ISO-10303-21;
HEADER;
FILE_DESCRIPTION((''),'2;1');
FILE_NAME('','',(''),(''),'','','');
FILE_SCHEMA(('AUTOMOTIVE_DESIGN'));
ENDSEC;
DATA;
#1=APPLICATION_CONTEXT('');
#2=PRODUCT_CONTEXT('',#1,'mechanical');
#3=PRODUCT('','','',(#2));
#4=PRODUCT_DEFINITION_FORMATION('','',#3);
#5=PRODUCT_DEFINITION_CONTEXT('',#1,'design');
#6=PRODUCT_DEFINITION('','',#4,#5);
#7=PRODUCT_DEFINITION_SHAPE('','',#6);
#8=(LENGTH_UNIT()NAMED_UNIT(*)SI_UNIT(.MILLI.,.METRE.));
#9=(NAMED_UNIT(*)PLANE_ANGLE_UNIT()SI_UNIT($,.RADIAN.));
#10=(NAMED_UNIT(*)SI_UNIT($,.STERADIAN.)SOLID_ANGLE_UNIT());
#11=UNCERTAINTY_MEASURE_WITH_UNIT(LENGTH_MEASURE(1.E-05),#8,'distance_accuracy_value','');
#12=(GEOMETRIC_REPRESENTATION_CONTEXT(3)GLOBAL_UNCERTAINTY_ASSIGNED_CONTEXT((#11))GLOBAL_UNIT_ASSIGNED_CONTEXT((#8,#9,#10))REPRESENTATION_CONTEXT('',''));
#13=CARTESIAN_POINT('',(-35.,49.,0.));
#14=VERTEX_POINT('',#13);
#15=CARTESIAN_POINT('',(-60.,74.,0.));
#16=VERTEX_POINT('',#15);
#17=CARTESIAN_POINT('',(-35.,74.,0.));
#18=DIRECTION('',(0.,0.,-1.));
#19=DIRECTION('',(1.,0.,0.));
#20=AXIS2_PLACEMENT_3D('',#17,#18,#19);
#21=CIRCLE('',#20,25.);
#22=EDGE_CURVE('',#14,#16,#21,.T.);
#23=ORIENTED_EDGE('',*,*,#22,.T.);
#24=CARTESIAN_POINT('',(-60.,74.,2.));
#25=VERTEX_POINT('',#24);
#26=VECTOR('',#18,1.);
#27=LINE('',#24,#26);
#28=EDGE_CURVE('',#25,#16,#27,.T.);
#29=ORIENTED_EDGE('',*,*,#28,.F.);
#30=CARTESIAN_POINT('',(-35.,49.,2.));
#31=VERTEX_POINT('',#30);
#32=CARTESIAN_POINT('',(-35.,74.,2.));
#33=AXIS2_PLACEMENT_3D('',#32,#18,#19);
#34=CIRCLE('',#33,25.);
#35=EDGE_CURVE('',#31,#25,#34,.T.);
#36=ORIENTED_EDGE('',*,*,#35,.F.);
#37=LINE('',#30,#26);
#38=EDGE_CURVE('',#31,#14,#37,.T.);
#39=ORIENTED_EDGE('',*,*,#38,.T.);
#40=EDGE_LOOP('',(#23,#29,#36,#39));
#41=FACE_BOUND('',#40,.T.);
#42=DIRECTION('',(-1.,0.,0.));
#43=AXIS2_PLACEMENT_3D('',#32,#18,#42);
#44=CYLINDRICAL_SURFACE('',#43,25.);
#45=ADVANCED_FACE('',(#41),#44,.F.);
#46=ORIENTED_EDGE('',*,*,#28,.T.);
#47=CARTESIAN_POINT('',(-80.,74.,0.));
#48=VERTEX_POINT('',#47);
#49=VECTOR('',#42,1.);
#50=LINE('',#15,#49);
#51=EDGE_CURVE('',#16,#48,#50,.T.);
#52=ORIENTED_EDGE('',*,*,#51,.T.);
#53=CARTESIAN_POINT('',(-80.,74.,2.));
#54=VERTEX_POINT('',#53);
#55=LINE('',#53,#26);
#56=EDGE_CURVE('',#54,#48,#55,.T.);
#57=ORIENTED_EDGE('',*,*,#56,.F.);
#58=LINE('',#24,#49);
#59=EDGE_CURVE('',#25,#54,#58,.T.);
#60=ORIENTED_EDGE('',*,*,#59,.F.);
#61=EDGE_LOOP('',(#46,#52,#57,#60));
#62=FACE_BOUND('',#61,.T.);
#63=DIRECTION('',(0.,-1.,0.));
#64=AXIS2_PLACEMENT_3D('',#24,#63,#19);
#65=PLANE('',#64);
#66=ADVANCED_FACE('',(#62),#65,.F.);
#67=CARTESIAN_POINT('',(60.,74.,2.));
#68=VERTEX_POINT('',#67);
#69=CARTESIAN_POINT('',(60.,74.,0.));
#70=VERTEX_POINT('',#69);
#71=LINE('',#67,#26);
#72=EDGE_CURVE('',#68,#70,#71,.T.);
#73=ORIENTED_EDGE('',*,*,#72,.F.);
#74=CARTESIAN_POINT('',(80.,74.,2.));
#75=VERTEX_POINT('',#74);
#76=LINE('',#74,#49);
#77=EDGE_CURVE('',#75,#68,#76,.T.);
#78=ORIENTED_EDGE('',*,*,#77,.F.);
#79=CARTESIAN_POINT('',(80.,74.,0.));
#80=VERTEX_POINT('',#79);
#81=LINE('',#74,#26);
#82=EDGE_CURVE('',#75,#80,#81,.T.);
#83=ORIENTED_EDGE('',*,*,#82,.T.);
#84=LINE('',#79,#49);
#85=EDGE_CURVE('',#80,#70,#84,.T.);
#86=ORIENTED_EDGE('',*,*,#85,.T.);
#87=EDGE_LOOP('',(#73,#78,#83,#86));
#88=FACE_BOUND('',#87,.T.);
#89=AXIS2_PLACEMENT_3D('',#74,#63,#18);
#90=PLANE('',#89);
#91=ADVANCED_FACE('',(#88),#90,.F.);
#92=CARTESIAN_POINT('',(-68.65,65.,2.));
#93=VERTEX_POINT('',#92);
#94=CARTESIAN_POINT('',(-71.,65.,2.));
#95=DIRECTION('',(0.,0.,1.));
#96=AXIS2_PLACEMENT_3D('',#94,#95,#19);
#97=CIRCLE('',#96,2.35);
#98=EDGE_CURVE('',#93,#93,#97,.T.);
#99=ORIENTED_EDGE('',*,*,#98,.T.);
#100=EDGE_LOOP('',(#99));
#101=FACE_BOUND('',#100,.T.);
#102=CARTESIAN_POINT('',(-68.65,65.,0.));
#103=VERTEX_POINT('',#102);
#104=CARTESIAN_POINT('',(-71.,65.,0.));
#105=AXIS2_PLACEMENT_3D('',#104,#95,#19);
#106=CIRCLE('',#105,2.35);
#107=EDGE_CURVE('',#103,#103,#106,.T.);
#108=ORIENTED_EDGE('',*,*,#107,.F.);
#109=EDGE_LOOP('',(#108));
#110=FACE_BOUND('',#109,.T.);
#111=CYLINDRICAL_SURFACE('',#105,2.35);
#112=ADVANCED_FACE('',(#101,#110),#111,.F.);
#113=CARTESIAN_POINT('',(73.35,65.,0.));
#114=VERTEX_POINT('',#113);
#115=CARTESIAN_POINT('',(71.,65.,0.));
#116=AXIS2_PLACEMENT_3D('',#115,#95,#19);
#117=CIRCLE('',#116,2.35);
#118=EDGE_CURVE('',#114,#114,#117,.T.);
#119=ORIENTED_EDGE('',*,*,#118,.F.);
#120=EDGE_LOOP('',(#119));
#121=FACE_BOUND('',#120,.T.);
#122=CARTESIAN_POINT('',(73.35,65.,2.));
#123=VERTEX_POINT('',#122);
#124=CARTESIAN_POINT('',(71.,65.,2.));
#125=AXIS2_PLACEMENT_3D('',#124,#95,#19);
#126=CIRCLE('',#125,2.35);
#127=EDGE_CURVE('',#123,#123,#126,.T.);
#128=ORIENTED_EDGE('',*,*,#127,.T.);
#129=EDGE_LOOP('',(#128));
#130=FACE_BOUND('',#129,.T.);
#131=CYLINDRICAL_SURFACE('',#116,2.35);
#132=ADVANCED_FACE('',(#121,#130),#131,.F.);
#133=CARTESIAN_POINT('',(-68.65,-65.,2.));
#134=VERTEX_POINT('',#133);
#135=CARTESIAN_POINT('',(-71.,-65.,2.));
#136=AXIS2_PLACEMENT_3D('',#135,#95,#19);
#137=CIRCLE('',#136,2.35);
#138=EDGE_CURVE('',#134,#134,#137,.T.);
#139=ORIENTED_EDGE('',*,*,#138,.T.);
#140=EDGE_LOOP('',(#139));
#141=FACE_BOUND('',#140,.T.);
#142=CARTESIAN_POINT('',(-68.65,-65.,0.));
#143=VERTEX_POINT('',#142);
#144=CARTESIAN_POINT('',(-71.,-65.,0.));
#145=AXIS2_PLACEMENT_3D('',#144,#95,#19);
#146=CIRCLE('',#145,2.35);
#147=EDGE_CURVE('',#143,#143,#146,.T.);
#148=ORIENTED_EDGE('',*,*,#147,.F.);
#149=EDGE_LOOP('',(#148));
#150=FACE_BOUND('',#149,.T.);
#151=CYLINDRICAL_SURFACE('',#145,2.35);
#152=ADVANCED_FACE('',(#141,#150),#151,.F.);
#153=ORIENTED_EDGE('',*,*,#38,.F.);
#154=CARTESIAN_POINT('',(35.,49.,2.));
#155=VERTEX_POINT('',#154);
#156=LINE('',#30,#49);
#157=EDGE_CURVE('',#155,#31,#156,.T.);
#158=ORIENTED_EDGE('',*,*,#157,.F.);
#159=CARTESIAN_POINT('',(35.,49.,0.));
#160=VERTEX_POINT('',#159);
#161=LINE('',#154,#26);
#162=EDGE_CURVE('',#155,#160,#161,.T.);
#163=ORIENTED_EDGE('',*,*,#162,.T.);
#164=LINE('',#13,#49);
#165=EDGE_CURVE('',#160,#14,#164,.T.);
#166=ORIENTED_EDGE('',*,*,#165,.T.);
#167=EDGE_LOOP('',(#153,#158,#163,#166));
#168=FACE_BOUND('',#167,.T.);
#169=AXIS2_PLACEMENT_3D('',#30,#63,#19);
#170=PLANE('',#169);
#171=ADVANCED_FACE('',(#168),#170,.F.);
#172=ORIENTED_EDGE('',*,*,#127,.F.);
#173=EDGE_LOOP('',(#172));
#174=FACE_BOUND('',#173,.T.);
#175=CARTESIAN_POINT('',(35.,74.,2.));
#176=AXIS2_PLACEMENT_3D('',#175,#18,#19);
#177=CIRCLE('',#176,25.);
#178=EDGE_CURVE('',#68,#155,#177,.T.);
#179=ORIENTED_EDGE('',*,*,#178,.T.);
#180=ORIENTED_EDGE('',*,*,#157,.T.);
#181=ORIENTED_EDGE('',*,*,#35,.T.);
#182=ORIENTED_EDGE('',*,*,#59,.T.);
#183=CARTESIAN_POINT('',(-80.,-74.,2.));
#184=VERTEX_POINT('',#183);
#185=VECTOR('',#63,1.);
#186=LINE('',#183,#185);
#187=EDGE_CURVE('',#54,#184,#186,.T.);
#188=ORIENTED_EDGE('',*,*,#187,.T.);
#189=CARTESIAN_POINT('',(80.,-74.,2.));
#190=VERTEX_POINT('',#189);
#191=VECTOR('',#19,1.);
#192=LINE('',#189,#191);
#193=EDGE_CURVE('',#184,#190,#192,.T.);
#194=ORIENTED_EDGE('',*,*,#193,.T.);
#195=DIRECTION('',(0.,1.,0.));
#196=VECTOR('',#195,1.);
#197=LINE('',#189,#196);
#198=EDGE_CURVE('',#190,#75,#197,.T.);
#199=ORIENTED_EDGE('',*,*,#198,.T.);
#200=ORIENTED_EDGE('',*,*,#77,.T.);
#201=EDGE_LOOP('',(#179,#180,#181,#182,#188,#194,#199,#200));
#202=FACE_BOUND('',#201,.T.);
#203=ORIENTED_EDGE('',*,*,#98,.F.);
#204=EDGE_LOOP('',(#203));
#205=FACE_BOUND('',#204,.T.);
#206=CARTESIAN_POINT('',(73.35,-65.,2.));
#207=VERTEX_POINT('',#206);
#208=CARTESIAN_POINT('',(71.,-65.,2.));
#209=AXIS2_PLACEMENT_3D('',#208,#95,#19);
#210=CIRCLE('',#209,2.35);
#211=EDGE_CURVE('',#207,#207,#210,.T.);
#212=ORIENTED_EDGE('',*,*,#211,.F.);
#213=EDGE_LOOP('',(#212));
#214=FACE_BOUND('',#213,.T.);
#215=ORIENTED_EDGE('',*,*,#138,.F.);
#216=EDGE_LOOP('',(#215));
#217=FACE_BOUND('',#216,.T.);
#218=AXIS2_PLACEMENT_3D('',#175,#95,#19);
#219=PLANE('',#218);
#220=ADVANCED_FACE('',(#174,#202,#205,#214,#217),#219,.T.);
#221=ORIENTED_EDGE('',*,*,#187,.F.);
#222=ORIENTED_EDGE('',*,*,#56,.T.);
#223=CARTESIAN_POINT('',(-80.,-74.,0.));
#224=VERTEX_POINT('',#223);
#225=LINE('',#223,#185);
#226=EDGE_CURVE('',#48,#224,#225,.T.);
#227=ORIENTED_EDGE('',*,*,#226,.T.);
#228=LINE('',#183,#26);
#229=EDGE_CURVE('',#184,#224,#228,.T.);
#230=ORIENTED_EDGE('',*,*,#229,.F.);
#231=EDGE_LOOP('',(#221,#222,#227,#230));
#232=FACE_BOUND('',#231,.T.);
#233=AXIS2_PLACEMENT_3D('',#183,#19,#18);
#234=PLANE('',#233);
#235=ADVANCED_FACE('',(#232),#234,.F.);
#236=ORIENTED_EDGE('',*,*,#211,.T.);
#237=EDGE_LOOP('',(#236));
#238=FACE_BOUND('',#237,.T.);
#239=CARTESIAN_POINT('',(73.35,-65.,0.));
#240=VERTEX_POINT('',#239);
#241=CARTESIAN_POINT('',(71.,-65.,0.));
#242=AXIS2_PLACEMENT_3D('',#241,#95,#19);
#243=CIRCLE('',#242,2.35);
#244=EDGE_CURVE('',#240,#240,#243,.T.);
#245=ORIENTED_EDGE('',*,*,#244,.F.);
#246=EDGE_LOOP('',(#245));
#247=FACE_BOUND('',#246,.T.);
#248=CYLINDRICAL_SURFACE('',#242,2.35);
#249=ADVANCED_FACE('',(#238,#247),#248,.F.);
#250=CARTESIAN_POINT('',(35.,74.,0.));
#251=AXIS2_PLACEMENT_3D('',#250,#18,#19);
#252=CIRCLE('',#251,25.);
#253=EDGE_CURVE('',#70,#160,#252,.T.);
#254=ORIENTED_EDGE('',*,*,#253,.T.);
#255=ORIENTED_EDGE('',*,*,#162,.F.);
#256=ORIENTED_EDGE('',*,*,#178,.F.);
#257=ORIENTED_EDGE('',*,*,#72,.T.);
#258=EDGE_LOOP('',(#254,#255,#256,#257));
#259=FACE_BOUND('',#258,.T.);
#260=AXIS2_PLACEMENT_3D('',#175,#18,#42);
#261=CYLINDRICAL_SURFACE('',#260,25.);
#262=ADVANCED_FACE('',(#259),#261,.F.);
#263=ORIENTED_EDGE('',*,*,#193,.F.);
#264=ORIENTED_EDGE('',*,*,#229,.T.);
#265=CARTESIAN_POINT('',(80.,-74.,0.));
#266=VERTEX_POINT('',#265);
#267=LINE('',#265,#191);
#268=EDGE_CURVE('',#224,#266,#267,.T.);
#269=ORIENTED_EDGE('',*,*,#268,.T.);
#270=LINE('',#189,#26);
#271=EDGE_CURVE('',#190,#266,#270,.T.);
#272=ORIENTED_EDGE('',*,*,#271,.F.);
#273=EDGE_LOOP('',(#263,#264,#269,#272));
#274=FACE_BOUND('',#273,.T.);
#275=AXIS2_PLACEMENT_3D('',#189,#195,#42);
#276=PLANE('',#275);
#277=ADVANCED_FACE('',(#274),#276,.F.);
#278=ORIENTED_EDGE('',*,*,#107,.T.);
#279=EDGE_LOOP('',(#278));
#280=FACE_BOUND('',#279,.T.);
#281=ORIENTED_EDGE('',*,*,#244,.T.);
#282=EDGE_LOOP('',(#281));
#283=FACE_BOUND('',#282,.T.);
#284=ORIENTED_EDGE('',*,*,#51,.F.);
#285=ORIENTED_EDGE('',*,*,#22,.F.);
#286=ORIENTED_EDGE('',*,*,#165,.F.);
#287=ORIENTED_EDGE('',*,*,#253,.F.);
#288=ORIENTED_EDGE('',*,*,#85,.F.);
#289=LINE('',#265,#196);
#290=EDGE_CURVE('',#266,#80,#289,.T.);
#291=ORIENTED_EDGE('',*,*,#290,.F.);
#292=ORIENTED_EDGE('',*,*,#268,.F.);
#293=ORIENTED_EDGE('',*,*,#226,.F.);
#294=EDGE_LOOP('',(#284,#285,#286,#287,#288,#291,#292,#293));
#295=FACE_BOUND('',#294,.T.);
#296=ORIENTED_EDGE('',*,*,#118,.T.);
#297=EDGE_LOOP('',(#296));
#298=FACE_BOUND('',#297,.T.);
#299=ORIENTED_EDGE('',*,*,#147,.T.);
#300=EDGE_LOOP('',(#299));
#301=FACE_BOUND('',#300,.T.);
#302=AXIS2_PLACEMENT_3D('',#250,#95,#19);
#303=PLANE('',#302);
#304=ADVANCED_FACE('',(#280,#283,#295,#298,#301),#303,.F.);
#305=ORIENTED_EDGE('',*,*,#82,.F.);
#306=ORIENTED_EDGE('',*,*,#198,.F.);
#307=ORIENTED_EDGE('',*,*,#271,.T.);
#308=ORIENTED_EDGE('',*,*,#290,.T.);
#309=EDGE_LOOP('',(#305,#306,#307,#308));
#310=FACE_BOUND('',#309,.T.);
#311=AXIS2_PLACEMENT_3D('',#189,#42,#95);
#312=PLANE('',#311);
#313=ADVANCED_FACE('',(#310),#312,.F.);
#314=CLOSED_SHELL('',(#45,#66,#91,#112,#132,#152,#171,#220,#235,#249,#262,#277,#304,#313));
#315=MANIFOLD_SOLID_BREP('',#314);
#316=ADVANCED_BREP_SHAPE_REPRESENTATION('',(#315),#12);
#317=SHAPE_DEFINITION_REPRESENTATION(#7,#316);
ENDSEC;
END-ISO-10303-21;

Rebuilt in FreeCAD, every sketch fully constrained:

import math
import FreeCAD as App
import Part
import Sketcher

V = App.Vector

doc = App.newDocument("Part")
body = doc.addObject("PartDesign::Body", "Body")

# Sketch on XY plane
sketch1 = doc.addObject("Sketcher::SketchObject", "Sketch")
body.addObject(sketch1)
sketch1.AttachmentSupport = (doc.XY_Plane, [""])
sketch1.MapMode = "FlatFace"
sketch1.addGeometry(Part.LineSegment(V(35, 49, 0), V(-35, 49, 0)), False)
sketch1.addGeometry(Part.ArcOfCircle(Part.Circle(V(-35, 74, 0), V(0, 0, 1), 25), math.radians(180), math.radians(270)), False)
sketch1.addGeometry(Part.LineSegment(V(-60, 74, 0), V(-80, 74, 0)), False)
sketch1.addGeometry(Part.LineSegment(V(-80, 74, 0), V(-80, -74, 0)), False)
sketch1.addGeometry(Part.LineSegment(V(-80, -74, 0), V(80, -74, 0)), False)
sketch1.addGeometry(Part.LineSegment(V(80, -74, 0), V(80, 74, 0)), False)
sketch1.addGeometry(Part.LineSegment(V(80, 74, 0), V(60, 74, 0)), False)
sketch1.addGeometry(Part.ArcOfCircle(Part.Circle(V(35, 74, 0), V(0, 0, 1), 25), math.radians(-90), math.radians(0)), False)
sketch1.addConstraint(Sketcher.Constraint("Tangent", 0, 2, 1, 2))
sketch1.addConstraint(Sketcher.Constraint("Coincident", 1, 1, 2, 1))
sketch1.addConstraint(Sketcher.Constraint("Coincident", 2, 2, 3, 1))
sketch1.addConstraint(Sketcher.Constraint("Coincident", 3, 2, 4, 1))
sketch1.addConstraint(Sketcher.Constraint("Coincident", 4, 2, 5, 1))
sketch1.addConstraint(Sketcher.Constraint("Coincident", 5, 2, 6, 1))
sketch1.addConstraint(Sketcher.Constraint("Coincident", 6, 2, 7, 2))
sketch1.addConstraint(Sketcher.Constraint("Tangent", 7, 1, 0, 1))
sketch1.addConstraint(Sketcher.Constraint("Horizontal", 0))
sketch1.addConstraint(Sketcher.Constraint("Horizontal", 2))
sketch1.addConstraint(Sketcher.Constraint("Vertical", 3))
sketch1.addConstraint(Sketcher.Constraint("Horizontal", 4))
sketch1.addConstraint(Sketcher.Constraint("Vertical", 5))
sketch1.addConstraint(Sketcher.Constraint("Horizontal", 6))
sketch1.addConstraint(Sketcher.Constraint("Equal", 1, 7))
sketch1.addConstraint(Sketcher.Constraint("Symmetric", 2, 2, 4, 2, -1, 1))
sketch1.addConstraint(Sketcher.Constraint("Symmetric", 1, 1, 6, 2, -2))
sketch1.addConstraint(Sketcher.Constraint("Horizontal", 7, 3, 1, 1))
sketch1.addConstraint(Sketcher.Constraint("Radius", 1, 25.0))
sketch1.addConstraint(Sketcher.Constraint("DistanceX", 0, 2, 0, 1, 70.0))
sketch1.addConstraint(Sketcher.Constraint("DistanceX", 2, 2, 2, 1, 20.0))
sketch1.addConstraint(Sketcher.Constraint("DistanceY", 3, 2, 3, 1, 148.0))
pad1 = doc.addObject("PartDesign::Pad", "Pad")
body.addObject(pad1)
pad1.Profile = sketch1
pad1.Length = 2

# Sketch on XY plane
sketch2 = doc.addObject("Sketcher::SketchObject", "Sketch001")
body.addObject(sketch2)
sketch2.AttachmentSupport = (doc.XY_Plane, [""])
sketch2.MapMode = "FlatFace"
sketch2.AttachmentOffset = App.Placement(V(0, 0, 2), App.Rotation())
sketch2.addGeometry(Part.Circle(V(71, 65, 0), V(0, 0, 1), 2.35), False)
sketch2.addGeometry(Part.Circle(V(-71, -65, 0), V(0, 0, 1), 2.35), False)
sketch2.addGeometry(Part.Circle(V(71, -65, 0), V(0, 0, 1), 2.35), False)
sketch2.addGeometry(Part.Circle(V(-71, 65, 0), V(0, 0, 1), 2.35), False)
sketch2.addConstraint(Sketcher.Constraint("Equal", 0, 1))
sketch2.addConstraint(Sketcher.Constraint("Equal", 1, 2))
sketch2.addConstraint(Sketcher.Constraint("Equal", 2, 3))
sketch2.addConstraint(Sketcher.Constraint("Symmetric", 0, 3, 1, 3, -1, 1))
sketch2.addConstraint(Sketcher.Constraint("Symmetric", 2, 3, 3, 3, -1, 1))
sketch2.addConstraint(Sketcher.Constraint("Symmetric", 1, 3, 2, 3, -2))
sketch2.addConstraint(Sketcher.Constraint("Diameter", 0, 4.7))
sketch2.addConstraint(Sketcher.Constraint("DistanceX", -1, 1, 0, 3, 71.0))
sketch2.addConstraint(Sketcher.Constraint("DistanceY", -1, 1, 0, 3, 65.0))
pocket1 = doc.addObject("PartDesign::Pocket", "Pocket")
body.addObject(pocket1)
pocket1.Profile = sketch2
pocket1.Type = "ThroughAll"

doc.recompute()
